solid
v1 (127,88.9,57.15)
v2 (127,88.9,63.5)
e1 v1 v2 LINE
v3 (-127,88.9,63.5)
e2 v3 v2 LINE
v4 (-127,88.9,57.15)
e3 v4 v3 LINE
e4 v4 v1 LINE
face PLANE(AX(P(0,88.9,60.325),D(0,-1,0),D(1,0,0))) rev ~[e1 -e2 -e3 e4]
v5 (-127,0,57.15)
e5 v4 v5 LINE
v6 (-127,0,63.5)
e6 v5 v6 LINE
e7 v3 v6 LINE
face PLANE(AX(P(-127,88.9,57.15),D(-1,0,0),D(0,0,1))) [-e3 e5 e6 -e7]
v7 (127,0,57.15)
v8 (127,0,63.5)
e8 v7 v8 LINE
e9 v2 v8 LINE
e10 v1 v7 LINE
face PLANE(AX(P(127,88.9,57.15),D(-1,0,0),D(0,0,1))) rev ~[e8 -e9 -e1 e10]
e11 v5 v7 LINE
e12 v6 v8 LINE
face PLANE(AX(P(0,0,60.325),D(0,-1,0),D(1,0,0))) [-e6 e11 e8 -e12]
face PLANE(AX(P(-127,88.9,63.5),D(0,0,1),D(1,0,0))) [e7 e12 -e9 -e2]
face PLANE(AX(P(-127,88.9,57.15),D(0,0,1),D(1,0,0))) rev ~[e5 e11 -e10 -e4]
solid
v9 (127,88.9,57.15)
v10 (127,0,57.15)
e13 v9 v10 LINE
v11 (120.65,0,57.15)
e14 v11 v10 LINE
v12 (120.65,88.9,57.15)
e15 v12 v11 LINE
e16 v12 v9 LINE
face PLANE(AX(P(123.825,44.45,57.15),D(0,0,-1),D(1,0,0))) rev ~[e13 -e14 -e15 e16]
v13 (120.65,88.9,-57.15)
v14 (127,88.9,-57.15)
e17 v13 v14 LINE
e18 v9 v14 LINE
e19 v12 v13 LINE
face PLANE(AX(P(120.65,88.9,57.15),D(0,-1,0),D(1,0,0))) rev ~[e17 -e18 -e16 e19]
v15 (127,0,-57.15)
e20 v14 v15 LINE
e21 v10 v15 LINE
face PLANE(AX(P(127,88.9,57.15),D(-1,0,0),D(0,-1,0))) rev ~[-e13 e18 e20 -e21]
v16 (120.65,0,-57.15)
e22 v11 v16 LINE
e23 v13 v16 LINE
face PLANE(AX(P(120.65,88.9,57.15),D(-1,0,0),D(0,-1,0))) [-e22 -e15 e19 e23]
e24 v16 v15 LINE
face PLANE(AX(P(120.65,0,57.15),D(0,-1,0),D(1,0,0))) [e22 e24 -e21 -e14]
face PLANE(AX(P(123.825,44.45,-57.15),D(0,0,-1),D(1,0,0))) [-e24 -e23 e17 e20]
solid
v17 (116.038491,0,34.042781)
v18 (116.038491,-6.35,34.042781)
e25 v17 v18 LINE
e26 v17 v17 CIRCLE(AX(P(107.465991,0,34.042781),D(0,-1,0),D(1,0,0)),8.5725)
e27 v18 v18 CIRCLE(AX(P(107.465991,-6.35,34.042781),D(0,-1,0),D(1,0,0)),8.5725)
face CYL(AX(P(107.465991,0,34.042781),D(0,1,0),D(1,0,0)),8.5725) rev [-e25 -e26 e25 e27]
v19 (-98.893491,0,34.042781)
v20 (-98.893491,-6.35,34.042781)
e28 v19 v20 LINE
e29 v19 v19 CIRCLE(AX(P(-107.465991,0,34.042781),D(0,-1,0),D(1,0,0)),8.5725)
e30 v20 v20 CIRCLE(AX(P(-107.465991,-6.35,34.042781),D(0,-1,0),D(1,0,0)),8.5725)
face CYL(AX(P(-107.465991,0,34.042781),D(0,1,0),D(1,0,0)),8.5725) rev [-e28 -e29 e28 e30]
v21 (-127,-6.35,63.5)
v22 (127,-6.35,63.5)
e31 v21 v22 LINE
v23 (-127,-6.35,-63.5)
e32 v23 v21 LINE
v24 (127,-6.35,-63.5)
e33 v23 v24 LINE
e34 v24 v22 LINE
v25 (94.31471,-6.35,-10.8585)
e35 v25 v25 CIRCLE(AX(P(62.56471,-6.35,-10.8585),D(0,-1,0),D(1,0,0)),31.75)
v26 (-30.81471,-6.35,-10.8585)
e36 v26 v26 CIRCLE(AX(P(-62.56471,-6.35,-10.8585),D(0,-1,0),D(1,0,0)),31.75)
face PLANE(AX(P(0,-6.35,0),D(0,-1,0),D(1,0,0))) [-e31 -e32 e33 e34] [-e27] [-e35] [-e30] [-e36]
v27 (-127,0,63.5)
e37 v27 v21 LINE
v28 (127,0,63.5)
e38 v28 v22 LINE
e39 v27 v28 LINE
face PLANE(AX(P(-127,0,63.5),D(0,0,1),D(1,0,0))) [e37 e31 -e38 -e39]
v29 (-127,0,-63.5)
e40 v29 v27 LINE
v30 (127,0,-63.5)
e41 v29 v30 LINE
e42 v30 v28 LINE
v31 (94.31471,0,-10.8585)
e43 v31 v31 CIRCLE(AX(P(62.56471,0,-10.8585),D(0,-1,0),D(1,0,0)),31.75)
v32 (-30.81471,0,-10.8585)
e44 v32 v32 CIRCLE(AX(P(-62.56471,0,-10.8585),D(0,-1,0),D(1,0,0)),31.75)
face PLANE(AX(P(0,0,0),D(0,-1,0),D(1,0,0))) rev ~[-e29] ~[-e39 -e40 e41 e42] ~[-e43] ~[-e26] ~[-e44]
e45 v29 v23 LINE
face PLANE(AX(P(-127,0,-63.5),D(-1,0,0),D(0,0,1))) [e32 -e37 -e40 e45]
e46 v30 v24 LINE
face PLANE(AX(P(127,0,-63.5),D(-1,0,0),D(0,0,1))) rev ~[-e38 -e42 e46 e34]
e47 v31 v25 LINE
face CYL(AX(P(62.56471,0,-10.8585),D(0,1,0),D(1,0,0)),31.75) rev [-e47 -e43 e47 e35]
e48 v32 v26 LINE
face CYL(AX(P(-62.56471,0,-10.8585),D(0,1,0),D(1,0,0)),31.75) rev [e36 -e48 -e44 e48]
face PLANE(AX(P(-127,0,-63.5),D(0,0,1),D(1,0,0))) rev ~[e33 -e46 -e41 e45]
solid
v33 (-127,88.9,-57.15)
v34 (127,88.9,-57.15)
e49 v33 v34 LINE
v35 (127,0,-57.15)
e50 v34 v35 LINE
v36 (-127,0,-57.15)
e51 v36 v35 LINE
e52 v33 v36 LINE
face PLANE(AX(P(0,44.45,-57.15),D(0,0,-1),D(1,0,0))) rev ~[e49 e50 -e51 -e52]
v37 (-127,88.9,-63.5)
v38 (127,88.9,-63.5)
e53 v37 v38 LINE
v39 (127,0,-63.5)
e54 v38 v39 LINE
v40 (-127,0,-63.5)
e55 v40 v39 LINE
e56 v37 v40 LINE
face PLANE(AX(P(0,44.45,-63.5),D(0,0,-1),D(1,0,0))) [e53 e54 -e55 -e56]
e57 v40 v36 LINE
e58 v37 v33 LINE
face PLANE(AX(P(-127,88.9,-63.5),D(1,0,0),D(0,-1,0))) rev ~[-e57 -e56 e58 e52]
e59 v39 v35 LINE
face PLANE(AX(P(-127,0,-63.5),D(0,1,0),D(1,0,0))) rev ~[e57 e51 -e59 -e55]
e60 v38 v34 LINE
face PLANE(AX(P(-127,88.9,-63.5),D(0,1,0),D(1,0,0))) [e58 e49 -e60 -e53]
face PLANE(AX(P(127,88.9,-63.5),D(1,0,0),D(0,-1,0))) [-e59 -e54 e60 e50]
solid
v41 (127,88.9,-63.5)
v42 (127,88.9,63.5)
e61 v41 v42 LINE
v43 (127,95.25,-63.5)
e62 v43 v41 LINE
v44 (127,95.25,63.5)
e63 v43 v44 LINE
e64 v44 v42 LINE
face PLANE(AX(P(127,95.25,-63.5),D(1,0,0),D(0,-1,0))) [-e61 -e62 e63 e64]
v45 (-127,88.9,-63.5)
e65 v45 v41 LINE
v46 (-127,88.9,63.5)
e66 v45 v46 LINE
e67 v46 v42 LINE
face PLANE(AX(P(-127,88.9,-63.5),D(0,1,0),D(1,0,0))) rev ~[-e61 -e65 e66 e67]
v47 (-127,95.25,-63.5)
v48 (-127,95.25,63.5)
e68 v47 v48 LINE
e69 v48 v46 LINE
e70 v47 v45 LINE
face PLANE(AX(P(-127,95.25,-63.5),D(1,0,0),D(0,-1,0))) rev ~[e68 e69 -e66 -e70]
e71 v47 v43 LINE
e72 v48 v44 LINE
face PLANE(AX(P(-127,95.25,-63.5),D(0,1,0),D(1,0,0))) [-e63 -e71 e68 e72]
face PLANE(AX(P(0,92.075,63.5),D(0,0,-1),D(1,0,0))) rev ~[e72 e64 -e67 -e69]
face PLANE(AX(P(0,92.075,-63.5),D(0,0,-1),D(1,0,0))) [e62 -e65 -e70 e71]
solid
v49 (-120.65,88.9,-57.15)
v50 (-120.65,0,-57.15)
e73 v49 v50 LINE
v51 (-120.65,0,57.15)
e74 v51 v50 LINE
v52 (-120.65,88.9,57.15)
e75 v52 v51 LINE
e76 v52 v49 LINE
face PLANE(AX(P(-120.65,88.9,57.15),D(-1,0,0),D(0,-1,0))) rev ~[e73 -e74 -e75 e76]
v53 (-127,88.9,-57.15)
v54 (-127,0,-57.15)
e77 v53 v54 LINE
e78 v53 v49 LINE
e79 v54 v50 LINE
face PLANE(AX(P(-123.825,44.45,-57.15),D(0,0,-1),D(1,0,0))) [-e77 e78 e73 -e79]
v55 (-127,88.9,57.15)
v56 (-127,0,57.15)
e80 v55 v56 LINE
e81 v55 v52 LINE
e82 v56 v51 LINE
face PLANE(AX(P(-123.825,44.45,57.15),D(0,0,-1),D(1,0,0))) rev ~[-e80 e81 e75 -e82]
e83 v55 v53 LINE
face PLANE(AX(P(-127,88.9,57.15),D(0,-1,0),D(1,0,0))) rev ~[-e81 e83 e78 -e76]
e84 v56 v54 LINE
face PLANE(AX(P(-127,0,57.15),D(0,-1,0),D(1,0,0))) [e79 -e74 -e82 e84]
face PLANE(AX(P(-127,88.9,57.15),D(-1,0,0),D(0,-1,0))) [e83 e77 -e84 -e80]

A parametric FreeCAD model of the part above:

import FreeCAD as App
import Part
import Sketcher
Q = App.Units.Quantity


def add_polygon(sketch, points):
    """Adds a closed chain of lines whose ends are joined by coincident constraints."""
    first, n = sketch.GeometryCount, len(points)
    for a, b in zip(points, points[1:] + points[:1]):
        sketch.addGeometry(Part.LineSegment(App.Vector(*a, 0), App.Vector(*b, 0)), False)
    for i in range(n):
        sketch.addConstraint(Sketcher.Constraint("Coincident", first + i, 2, first + (i + 1) % n, 1))

doc = App.newDocument("Part")
params = doc.addObject("Spreadsheet::Sheet", "Params")
for row, (alias, value) in enumerate([
    ("sketch1_diameter", "2.5 in"),
    ("sketch1_width", "10 in"),
    ("sketch1_height", "5 in"),
    ("sketch1_diameter2", "0.675 in"),
    ("pad1_length", "0.25 in"),
    ("sketch2_width", "10 in"),
    ("sketch2_height", "3.5 in"),
    ("pad2_length", "0.25 in"),
    ("sketch3_width", "10 in"),
    ("sketch3_height", "0.25 in"),
    ("pad3_length", "5 in"),
    ("sketch4_width", "10 in"),
    ("sketch4_height", "0.25 in"),
    ("pad4_length", "3.5 in"),
    ("sketch5_height", "3.5 in"),
    ("sketch5_width", "0.25 in"),
    ("pad5_length", "4.5 in"),
    ("sketch6_height", "3.5 in"),
    ("sketch6_width", "0.25 in"),
    ("pad6_length", "4.5 in"),
], start=1):
    params.set(f"A{row}", alias)
    params.set(f"B{row}", "=" + value)
    params.setAlias(f"B{row}", alias)

body = doc.addObject("PartDesign::Body", "Body")

sketch1 = body.newObject("Sketcher::SketchObject", "Sketch")
sketch1.AttachmentSupport = (doc.getObject("XZ_Plane"), [""])
sketch1.MapMode = "FlatFace"
add_polygon(sketch1, [(-127, 63.5), (-127, -63.5), (127, -63.5), (127, 63.5)])
sketch1.addGeometry(Part.Circle(App.Vector(-62.56471, -10.8585, 0), App.Vector(0, 0, 1), 31.75), False)
sketch1.addGeometry(Part.Circle(App.Vector(62.56471, -10.8585, 0), App.Vector(0, 0, 1), 31.75), False)
sketch1.addGeometry(Part.Circle(App.Vector(-107.465991, 34.042781, 0), App.Vector(0, 0, 1), 8.5725), False)
sketch1.addGeometry(Part.Circle(App.Vector(107.465991, 34.042781, 0), App.Vector(0, 0, 1), 8.5725), False)
sketch1.addConstraint([
    Sketcher.Constraint("Vertical", 0),
    Sketcher.Constraint("Horizontal", 1),
    Sketcher.Constraint("Vertical", 2),
    Sketcher.Constraint("Horizontal", 3),
    Sketcher.Constraint("Equal", 4, 5),
    Sketcher.Constraint("Equal", 6, 7),
    Sketcher.Constraint("Symmetric", 0, 2, 2, 2, -1, 1),
    Sketcher.Constraint("Symmetric", 4, 3, 5, 3, -2),
    Sketcher.Constraint("Symmetric", 6, 3, 7, 3, -2),
    Sketcher.Constraint("Diameter", 4, Q("2.5 in")),
    Sketcher.Constraint("DistanceX", 1, 1, 1, 2, Q("10 in")),
    Sketcher.Constraint("DistanceY", 0, 2, 0, 1, Q("5 in")),
    Sketcher.Constraint("Diameter", 6, Q("0.675 in")),
    Sketcher.Constraint("DistanceY", 4, 3, -1, 1, Q("0.4275 in")),
    Sketcher.Constraint("DistanceX", 6, 3, 5, 3, 170.030701),
    Sketcher.Constraint("DistanceX", 4, 3, -1, 1, 62.56471),
    Sketcher.Constraint("DistanceY", -1, 1, 6, 3, 34.042781),
])
sketch1.setExpression("Constraints[13]", "Params.sketch1_diameter")
sketch1.setExpression("Constraints[14]", "Params.sketch1_width")
sketch1.setExpression("Constraints[15]", "Params.sketch1_height")
sketch1.setExpression("Constraints[16]", "Params.sketch1_diameter2")
pad1 = body.newObject("PartDesign::Pad", "Pad")
pad1.Profile = sketch1
pad1.setExpression("Length", "Params.pad1_length")
body2 = doc.addObject("PartDesign::Body", "Body001")

sketch2 = body2.newObject("Sketcher::SketchObject", "Sketch001")
sketch2.AttachmentSupport = (doc.getObject("XY_Plane001"), [""])
sketch2.MapMode = "FlatFace"
sketch2.AttachmentOffset = App.Placement(App.Vector(0, 0, -2.5 * 25.4), App.Rotation())
add_polygon(sketch2, [(-127, 0), (-127, 88.9), (127, 88.9), (127, 0)])
sketch2.addConstraint([
    Sketcher.Constraint("Vertical", 0),
    Sketcher.Constraint("Horizontal", 1),
    Sketcher.Constraint("Vertical", 2),
    Sketcher.Constraint("Horizontal", 3),
    Sketcher.Constraint("Symmetric", 2, 2, 3, 2, -1, 1),
    Sketcher.Constraint("DistanceX", 1, 1, 1, 2, Q("10 in")),
    Sketcher.Constraint("DistanceY", 0, 1, 0, 2, Q("3.5 in")),
])
sketch2.setExpression("Constraints[9]", "Params.sketch2_width")
sketch2.setExpression("Constraints[10]", "Params.sketch2_height")
pad2 = body2.newObject("PartDesign::Pad", "Pad001")
pad2.Profile = sketch2
pad2.setExpression("Length", "Params.pad2_length")
body3 = doc.addObject("PartDesign::Body", "Body002")

sketch3 = body3.newObject("Sketcher::SketchObject", "Sketch002")
sketch3.AttachmentSupport = (doc.getObject("XY_Plane002"), [""])
sketch3.MapMode = "FlatFace"
sketch3.AttachmentOffset = App.Placement(App.Vector(0, 0, -2.5 * 25.4), App.Rotation())
add_polygon(sketch3, [(-127, 88.9), (-127, 95.25), (127, 95.25), (127, 88.9)])
sketch3.addConstraint([
    Sketcher.Constraint("Vertical", 0),
    Sketcher.Constraint("Horizontal", 1),
    Sketcher.Constraint("Vertical", 2),
    Sketcher.Constraint("Horizontal", 3),
    Sketcher.Constraint("DistanceX", 1, 1, 1, 2, Q("10 in")),
    Sketcher.Constraint("DistanceX", 0, 2, -1, 1, Q("5 in")),
    Sketcher.Constraint("DistanceY", 0, 1, 0, 2, Q("0.25 in")),
    Sketcher.Constraint("DistanceY", -1, 1, 2, 2, Q("3.5 in")),
])
sketch3.setExpression("Constraints[8]", "Params.sketch3_width")
sketch3.setExpression("Constraints[10]", "Params.sketch3_height")
pad3 = body3.newObject("PartDesign::Pad", "Pad002")
pad3.Profile = sketch3
pad3.setExpression("Length", "Params.pad3_length")
body4 = doc.addObject("PartDesign::Body", "Body003")

sketch4 = body4.newObject("Sketcher::SketchObject", "Sketch003")
sketch4.AttachmentSupport = (doc.getObject("XZ_Plane003"), [""])
sketch4.MapMode = "FlatFace"
sketch4.AttachmentOffset = App.Placement(App.Vector(0, 0, -3.5 * 25.4), App.Rotation())
add_polygon(sketch4, [(-127, 63.5), (-127, 57.15), (127, 57.15), (127, 63.5)])
sketch4.addConstraint([
    Sketcher.Constraint("Vertical", 0),
    Sketcher.Constraint("Horizontal", 1),
    Sketcher.Constraint("Vertical", 2),
    Sketcher.Constraint("Horizontal", 3),
    Sketcher.Constraint("DistanceX", 1, 1, 1, 2, Q("10 in")),
    Sketcher.Constraint("DistanceX", 0, 2, -1, 1, Q("5 in")),
    Sketcher.Constraint("DistanceY", 0, 2, 0, 1, Q("0.25 in")),
    Sketcher.Constraint("DistanceY", -1, 1, 2, 2, Q("2.5 in")),
])
sketch4.setExpression("Constraints[8]", "Params.sketch4_width")
sketch4.setExpression("Constraints[10]", "Params.sketch4_height")
pad4 = body4.newObject("PartDesign::Pad", "Pad003")
pad4.Profile = sketch4
pad4.setExpression("Length", "Params.pad4_length")
body5 = doc.addObject("PartDesign::Body", "Body004")

sketch5 = body5.newObject("Sketcher::SketchObject", "Sketch004")
sketch5.AttachmentSupport = (doc.getObject("XY_Plane004"), [""])
sketch5.MapMode = "FlatFace"
sketch5.AttachmentOffset = App.Placement(App.Vector(0, 0, 2.25 * 25.4), App.Rotation())
add_polygon(sketch5, [(-127, 0), (-127, 88.9), (-120.65, 88.9), (-120.65, 0)])
sketch5.addConstraint([
    Sketcher.Constraint("Vertical", 0),
    Sketcher.Constraint("Horizontal", 1),
    Sketcher.Constraint("Vertical", 2),
    Sketcher.Constraint("Horizontal", 3),
    Sketcher.Constraint("PointOnObject", 2, 2, -1),
    Sketcher.Constraint("DistanceY", 0, 1, 0, 2, Q("3.5 in")),
    Sketcher.Constraint("DistanceX", 0, 2, -1, 1, Q("5 in")),
    Sketcher.Constraint("DistanceX", 1, 1, 1, 2, Q("0.25 in")),
])
sketch5.setExpression("Constraints[9]", "Params.sketch5_height")
sketch5.setExpression("Constraints[11]", "Params.sketch5_width")
pad5 = body5.newObject("PartDesign::Pad", "Pad004")
pad5.Profile = sketch5
pad5.setExpression("Length", "Params.pad5_length")
pad5.Reversed = True
body6 = doc.addObject("PartDesign::Body", "Body005")

sketch6 = body6.newObject("Sketcher::SketchObject", "Sketch005")
sketch6.AttachmentSupport = (doc.getObject("XY_Plane005"), [""])
sketch6.MapMode = "FlatFace"
sketch6.AttachmentOffset = App.Placement(App.Vector(0, 0, 2.25 * 25.4), App.Rotation())
add_polygon(sketch6, [(120.65, 0), (120.65, 88.9), (127, 88.9), (127, 0)])
sketch6.addConstraint([
    Sketcher.Constraint("Vertical", 0),
    Sketcher.Constraint("Horizontal", 1),
    Sketcher.Constraint("Vertical", 2),
    Sketcher.Constraint("Horizontal", 3),
    Sketcher.Constraint("PointOnObject", 2, 2, -1),
    Sketcher.Constraint("DistanceY", 0, 1, 0, 2, Q("3.5 in")),
    Sketcher.Constraint("DistanceX", -1, 1, 1, 2, Q("5 in")),
    Sketcher.Constraint("DistanceX", 1, 1, 1, 2, Q("0.25 in")),
])
sketch6.setExpression("Constraints[9]", "Params.sketch6_height")
sketch6.setExpression("Constraints[11]", "Params.sketch6_width")
pad6 = body6.newObject("PartDesign::Pad", "Pad005")
pad6.Profile = sketch6
pad6.setExpression("Length", "Params.pad6_length")
pad6.Reversed = True

doc.recompute()
